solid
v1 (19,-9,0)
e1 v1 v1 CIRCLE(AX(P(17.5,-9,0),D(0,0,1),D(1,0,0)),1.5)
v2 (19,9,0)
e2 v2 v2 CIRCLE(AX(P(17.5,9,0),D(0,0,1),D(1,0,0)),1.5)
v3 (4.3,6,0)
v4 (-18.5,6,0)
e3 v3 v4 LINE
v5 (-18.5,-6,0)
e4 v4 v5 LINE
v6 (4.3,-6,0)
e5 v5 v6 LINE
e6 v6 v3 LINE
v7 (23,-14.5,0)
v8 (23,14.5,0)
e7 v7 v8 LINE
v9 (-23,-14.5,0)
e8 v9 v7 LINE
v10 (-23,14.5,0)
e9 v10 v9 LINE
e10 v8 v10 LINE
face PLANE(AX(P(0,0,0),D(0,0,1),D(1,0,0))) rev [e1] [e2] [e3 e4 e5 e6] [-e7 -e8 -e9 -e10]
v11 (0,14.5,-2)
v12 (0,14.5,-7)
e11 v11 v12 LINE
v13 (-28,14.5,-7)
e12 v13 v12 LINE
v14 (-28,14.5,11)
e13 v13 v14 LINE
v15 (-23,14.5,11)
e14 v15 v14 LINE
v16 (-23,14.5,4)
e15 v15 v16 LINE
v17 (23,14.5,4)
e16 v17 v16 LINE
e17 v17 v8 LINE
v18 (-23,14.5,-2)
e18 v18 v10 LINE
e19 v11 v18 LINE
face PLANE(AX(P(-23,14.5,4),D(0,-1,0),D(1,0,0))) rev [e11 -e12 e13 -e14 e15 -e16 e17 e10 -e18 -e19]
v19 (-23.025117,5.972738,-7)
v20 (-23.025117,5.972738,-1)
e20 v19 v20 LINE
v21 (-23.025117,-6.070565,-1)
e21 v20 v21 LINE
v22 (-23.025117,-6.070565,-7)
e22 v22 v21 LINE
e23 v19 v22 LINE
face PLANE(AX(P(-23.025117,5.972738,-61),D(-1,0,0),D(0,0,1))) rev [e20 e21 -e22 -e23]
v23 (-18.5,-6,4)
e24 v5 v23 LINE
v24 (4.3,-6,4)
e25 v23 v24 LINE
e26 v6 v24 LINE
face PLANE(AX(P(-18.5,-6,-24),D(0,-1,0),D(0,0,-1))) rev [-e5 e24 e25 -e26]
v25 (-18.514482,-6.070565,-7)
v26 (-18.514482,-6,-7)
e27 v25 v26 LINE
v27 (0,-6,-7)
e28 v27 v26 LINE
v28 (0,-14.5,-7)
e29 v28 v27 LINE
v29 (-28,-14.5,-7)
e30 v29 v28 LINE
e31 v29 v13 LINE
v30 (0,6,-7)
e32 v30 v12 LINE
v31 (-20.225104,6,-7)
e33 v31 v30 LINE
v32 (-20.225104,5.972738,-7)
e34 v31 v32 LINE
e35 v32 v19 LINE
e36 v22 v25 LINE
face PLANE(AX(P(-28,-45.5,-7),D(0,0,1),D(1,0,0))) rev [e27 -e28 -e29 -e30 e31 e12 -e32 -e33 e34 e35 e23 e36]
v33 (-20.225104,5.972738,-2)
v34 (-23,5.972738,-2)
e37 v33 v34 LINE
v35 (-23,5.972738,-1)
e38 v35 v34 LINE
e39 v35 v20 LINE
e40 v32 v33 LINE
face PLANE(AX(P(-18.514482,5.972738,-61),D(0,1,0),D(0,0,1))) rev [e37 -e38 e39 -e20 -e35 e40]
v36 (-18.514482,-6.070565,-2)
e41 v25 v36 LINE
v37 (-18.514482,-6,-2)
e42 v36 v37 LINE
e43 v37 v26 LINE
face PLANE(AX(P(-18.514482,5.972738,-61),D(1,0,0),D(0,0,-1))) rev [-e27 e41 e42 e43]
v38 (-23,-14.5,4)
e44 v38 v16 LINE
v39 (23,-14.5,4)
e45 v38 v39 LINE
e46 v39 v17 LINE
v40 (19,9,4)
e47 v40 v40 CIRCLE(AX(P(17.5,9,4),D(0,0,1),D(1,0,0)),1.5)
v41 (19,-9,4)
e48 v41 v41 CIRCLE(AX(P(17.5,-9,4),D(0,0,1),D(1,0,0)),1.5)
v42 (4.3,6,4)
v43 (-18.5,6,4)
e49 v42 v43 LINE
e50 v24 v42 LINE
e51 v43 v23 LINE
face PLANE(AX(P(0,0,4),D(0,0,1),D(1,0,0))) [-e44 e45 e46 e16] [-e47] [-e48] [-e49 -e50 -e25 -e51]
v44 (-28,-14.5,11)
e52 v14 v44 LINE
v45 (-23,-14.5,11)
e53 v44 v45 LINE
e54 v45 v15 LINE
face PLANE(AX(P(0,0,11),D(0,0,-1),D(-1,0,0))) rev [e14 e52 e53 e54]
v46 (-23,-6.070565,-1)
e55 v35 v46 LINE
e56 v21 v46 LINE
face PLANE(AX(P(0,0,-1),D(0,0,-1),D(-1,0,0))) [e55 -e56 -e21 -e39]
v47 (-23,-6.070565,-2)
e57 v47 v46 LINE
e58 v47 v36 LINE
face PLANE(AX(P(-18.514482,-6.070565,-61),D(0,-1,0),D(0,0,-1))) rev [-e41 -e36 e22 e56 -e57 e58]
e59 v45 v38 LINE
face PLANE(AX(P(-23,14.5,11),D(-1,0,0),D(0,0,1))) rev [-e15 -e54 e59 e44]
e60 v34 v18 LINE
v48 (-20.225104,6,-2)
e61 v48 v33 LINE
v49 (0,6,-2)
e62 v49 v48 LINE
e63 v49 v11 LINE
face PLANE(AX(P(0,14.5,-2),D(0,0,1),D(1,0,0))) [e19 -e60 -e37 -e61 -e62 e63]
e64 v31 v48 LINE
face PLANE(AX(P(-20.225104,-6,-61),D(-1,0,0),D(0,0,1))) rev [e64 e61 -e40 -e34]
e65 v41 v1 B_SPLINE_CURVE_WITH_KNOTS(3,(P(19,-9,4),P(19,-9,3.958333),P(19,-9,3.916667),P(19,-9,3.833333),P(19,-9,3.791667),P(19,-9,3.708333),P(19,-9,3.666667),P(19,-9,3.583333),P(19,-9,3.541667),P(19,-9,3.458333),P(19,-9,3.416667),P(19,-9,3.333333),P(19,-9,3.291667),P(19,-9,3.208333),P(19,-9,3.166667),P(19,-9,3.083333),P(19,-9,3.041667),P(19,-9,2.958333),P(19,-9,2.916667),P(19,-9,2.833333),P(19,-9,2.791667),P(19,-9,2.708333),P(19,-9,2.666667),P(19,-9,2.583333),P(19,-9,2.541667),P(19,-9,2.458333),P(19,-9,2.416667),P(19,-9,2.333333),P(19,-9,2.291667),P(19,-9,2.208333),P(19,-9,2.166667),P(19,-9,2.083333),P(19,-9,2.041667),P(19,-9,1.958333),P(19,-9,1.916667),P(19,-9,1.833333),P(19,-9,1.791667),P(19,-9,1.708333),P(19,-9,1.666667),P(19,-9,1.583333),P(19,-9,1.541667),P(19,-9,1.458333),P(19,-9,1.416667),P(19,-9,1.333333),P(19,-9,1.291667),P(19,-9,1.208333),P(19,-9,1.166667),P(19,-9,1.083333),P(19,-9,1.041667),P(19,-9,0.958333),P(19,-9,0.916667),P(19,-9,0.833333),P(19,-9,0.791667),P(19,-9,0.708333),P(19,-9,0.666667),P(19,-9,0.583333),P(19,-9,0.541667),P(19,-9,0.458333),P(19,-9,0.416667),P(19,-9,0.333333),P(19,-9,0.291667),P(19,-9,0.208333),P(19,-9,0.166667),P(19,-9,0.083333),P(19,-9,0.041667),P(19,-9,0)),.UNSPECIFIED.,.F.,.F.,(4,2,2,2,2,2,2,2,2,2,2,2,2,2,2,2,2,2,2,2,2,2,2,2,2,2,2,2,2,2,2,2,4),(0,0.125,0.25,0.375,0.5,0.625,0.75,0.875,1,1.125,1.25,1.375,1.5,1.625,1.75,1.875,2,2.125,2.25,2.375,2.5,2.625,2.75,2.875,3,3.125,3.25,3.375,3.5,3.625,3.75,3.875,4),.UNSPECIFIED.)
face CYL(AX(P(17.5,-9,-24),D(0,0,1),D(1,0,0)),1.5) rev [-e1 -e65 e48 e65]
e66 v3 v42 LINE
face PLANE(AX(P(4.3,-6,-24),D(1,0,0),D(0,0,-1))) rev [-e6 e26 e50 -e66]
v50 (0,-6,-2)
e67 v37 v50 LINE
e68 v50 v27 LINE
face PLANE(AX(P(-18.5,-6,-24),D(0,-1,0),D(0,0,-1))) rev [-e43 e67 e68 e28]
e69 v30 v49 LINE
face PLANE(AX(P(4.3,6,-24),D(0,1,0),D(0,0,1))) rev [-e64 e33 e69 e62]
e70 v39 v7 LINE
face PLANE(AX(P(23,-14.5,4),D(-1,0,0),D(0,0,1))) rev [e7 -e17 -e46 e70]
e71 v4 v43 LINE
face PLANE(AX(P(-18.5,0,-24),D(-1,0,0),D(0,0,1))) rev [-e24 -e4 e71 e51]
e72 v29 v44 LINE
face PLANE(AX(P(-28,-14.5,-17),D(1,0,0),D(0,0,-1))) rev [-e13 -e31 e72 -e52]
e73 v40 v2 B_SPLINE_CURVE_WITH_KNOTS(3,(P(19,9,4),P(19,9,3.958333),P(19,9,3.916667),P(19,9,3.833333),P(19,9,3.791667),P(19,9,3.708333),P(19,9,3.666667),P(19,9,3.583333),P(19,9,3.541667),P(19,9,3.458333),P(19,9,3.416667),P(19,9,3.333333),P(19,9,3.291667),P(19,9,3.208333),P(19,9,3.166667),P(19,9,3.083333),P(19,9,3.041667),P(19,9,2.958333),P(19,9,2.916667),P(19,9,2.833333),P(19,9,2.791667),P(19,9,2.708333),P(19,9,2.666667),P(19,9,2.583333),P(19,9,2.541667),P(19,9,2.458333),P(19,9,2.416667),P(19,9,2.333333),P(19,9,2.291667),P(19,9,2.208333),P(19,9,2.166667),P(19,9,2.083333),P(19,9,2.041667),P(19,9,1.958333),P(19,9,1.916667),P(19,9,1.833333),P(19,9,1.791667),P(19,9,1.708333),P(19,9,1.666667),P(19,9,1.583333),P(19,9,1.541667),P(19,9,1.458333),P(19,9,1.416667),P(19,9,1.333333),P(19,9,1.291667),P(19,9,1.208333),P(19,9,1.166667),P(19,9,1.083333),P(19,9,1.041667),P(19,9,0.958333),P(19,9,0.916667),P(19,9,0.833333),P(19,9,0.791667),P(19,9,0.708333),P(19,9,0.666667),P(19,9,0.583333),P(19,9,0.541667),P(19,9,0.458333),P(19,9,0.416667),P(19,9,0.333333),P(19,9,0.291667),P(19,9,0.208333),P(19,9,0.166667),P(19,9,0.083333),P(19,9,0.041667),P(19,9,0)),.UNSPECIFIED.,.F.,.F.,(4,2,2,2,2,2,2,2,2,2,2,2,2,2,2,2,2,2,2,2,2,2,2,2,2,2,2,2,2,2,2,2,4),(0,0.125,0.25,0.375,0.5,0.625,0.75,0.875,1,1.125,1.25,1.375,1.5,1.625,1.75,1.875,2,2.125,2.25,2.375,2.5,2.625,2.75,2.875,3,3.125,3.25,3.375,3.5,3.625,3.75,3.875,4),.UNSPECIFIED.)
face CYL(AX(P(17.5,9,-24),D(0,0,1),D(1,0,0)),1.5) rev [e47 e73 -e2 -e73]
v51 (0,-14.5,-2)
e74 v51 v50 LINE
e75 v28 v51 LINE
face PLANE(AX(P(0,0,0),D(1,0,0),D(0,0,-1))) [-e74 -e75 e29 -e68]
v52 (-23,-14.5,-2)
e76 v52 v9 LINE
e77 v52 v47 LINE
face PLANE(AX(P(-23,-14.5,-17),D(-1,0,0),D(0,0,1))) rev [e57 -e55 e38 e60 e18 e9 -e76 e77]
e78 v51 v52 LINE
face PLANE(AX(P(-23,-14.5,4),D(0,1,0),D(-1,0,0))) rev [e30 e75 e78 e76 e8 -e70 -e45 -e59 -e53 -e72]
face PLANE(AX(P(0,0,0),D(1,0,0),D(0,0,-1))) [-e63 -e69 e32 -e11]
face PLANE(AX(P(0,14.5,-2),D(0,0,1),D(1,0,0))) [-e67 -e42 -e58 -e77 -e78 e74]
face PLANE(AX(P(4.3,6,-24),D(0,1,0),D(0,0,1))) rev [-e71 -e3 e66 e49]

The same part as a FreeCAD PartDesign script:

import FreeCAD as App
import Part
import Sketcher

V = App.Vector


def add_polygon(sketch, points):
    """Adds a closed chain of lines whose ends are joined by coincident constraints."""
    first, n = sketch.GeometryCount, len(points)
    for a, b in zip(points, points[1:] + points[:1]):
        sketch.addGeometry(Part.LineSegment(App.Vector(*a, 0), App.Vector(*b, 0)), False)
    for i in range(n):
        sketch.addConstraint(Sketcher.Constraint("Coincident", first + i, 2, first + (i + 1) % n, 1))

doc = App.newDocument("Part")
params = doc.addObject("Spreadsheet::Sheet", "Params")
for row, (alias, value) in enumerate([
    ("sketch1_width", "46 mm"),
    ("sketch1_height", "29 mm"),
    ("pad1_length", "4 mm"),
    ("sketch2_width", "5 mm"),
    ("sketch2_height", "29 mm"),
    ("pad2_length", "7 mm"),
    ("sketch3_width", "5 mm"),
    ("sketch3_height", "29 mm"),
    ("pad3_length", "21 mm"),
    ("sketch4_width", "29 mm"),
    ("sketch4_height", "15 mm"),
    ("pad4_length", "28 mm"),
    ("sketch5_diameter", "3 mm"),
    ("sketch5_height", "12 mm"),
    ("sketch5_width", "22.8 mm"),
    ("pocket1_length", "28 mm"),
    ("sketch6_width", "28 mm"),
    ("sketch6_height", "10 mm"),
    ("pocket2_length", "60 mm"),
    ("pocket3_length", "60 mm"),
    ("sketch8_height", "12 mm"),
    ("pocket4_length", "60 mm"),
], start=1):
    params.set(f"A{row}", alias)
    params.set(f"B{row}", "=" + value)
    params.setAlias(f"B{row}", alias)

body = doc.addObject("PartDesign::Body", "Body")

# Sketch on XY plane
sketch1 = body.newObject("Sketcher::SketchObject", "Sketch")
sketch1.AttachmentSupport = (doc.getObject("XY_Plane"), [""])
sketch1.MapMode = "FlatFace"
add_polygon(sketch1, [(-23, -14), (23, -14), (23, 14), (-23, 14)])  # lines 0-3
sketch1.addConstraint(Sketcher.Constraint("Horizontal", 0))
sketch1.addConstraint(Sketcher.Constraint("Vertical", 1))
sketch1.addConstraint(Sketcher.Constraint("Horizontal", 2))
sketch1.addConstraint(Sketcher.Constraint("Vertical", 3))
sketch1.addConstraint(Sketcher.Constraint("Symmetric", 0, 2, 2, 2, -1, 1))
sketch1.addConstraint(Sketcher.Constraint("DistanceX", 0, 1, 0, 2, 46.0))
sketch1.addConstraint(Sketcher.Constraint("DistanceY", 1, 1, 1, 2, 29.0))
sketch1.setExpression("Constraints[9]", "Params.sketch1_width")
sketch1.setExpression("Constraints[10]", "Params.sketch1_height")
pad1 = body.newObject("PartDesign::Pad", "Pad")
pad1.Profile = sketch1
pad1.setExpression("Length", "Params.pad1_length")
body2 = doc.addObject("PartDesign::Body", "Body001")

# Sketch on XY plane
sketch2 = body2.newObject("Sketcher::SketchObject", "Sketch001")
sketch2.AttachmentSupport = (doc.getObject("XY_Plane001"), [""])
sketch2.MapMode = "FlatFace"
sketch2.AttachmentOffset = App.Placement(V(0, 0, 4), App.Rotation())
add_polygon(sketch2, [(-28, 14), (-28, -14), (-23, -14), (-23, 14)])  # lines 0-3
sketch2.addConstraint(Sketcher.Constraint("Vertical", 0))
sketch2.addConstraint(Sketcher.Constraint("Horizontal", 1))
sketch2.addConstraint(Sketcher.Constraint("Vertical", 2))
sketch2.addConstraint(Sketcher.Constraint("Horizontal", 3))
sketch2.addConstraint(Sketcher.Constraint("DistanceX", 1, 1, 1, 2, 5.0))
sketch2.addConstraint(Sketcher.Constraint("DistanceY", 0, 2, 0, 1, 29.0))
sketch2.addConstraint(Sketcher.Constraint("DistanceX", 0, 2, -1, 1, 28.0))
sketch2.addConstraint(Sketcher.Constraint("DistanceY", 0, 2, -1, 1, 14.5))
sketch2.setExpression("Constraints[8]", "Params.sketch2_width")
sketch2.setExpression("Constraints[9]", "Params.sketch2_height")
pad2 = body2.newObject("PartDesign::Pad", "Pad001")
pad2.Profile = sketch2
pad2.setExpression("Length", "Params.pad2_length")
body.AllowCompound = True
doc.recompute()

boolean = body.newObject("PartDesign::Boolean", "Boolean")
boolean.Type = "Fuse"
boolean.addObjects([body2])

# Sketch on XY plane
sketch3 = body.newObject("Sketcher::SketchObject", "Sketch002")
sketch3.AttachmentSupport = (doc.getObject("XY_Plane"), [""])
sketch3.MapMode = "FlatFace"
sketch3.AttachmentOffset = App.Placement(V(0, 0, 4), App.Rotation())
add_polygon(sketch3, [(-28, -14), (-28, 14), (-23, 14), (-23, -14)])  # lines 0-3
sketch3.addConstraint(Sketcher.Constraint("Vertical", 0))
sketch3.addConstraint(Sketcher.Constraint("Horizontal", 1))
sketch3.addConstraint(Sketcher.Constraint("Vertical", 2))
sketch3.addConstraint(Sketcher.Constraint("Horizontal", 3))
sketch3.addConstraint(Sketcher.Constraint("DistanceX", 1, 1, 1, 2, 5.0))
sketch3.addConstraint(Sketcher.Constraint("DistanceY", 0, 1, 0, 2, 29.0))
sketch3.addConstraint(Sketcher.Constraint("DistanceX", 0, 2, -1, 1, 28.0))
sketch3.addConstraint(Sketcher.Constraint("DistanceY", -1, 1, 0, 2, 14.5))
sketch3.setExpression("Constraints[8]", "Params.sketch3_width")
sketch3.setExpression("Constraints[9]", "Params.sketch3_height")
pad3 = body.newObject("PartDesign::Pad", "Pad002")
pad3.Profile = sketch3
pad3.setExpression("Length", "Params.pad3_length")
pad3.Reversed = True

# Sketch on YZ plane
sketch4 = body.newObject("Sketcher::SketchObject", "Sketch003")
sketch4.AttachmentSupport = (doc.getObject("YZ_Plane"), [""])
sketch4.MapMode = "FlatFace"
sketch4.AttachmentOffset = App.Placement(V(0, 0, -28), App.Rotation())
add_polygon(sketch4, [(14, -2), (14, -17), (-14, -17), (-14, -2)])  # lines 0-3
sketch4.addConstraint(Sketcher.Constraint("Vertical", 0))
sketch4.addConstraint(Sketcher.Constraint("Horizontal", 1))
sketch4.addConstraint(Sketcher.Constraint("Vertical", 2))
sketch4.addConstraint(Sketcher.Constraint("Horizontal", 3))
sketch4.addConstraint(Sketcher.Constraint("DistanceX", 1, 2, 1, 1, 29.0))
sketch4.addConstraint(Sketcher.Constraint("DistanceY", 0, 2, 0, 1, 15.0))
sketch4.addConstraint(Sketcher.Constraint("DistanceY", 0, 2, -1, 1, 17.0))
sketch4.addConstraint(Sketcher.Constraint("DistanceX", -1, 1, 0, 2, 14.5))
sketch4.setExpression("Constraints[8]", "Params.sketch4_width")
sketch4.setExpression("Constraints[9]", "Params.sketch4_height")
pad4 = body.newObject("PartDesign::Pad", "Pad003")
pad4.Profile = sketch4
pad4.setExpression("Length", "Params.pad4_length")

# Sketch on XY plane
sketch5 = body.newObject("Sketcher::SketchObject", "Sketch004")
sketch5.AttachmentSupport = (doc.getObject("XY_Plane"), [""])
sketch5.MapMode = "FlatFace"
sketch5.AttachmentOffset = App.Placement(V(0, 0, 4), App.Rotation())
sketch5.addGeometry(Part.Circle(V(17.5, -9, 0), V(0, 0, 1), 1.5), False)  # 0
sketch5.addGeometry(Part.Circle(V(17.5, 9, 0), V(0, 0, 1), 1.5), False)  # 1
add_polygon(sketch5, [(-18.5, -6), (4.3, -6), (4.3, 6), (-18.5, 6)])  # lines 2-5
sketch5.addConstraint(Sketcher.Constraint("Horizontal", 2))
sketch5.addConstraint(Sketcher.Constraint("Vertical", 3))
sketch5.addConstraint(Sketcher.Constraint("Horizontal", 4))
sketch5.addConstraint(Sketcher.Constraint("Vertical", 5))
sketch5.addConstraint(Sketcher.Constraint("Equal", 0, 1))
sketch5.addConstraint(Sketcher.Constraint("Symmetric", 0, 3, 1, 3, -1))
sketch5.addConstraint(Sketcher.Constraint("Diameter", 0, 3.0))
sketch5.addConstraint(Sketcher.Constraint("DistanceY", 3, 1, 3, 2, 12.0))
sketch5.addConstraint(Sketcher.Constraint("DistanceX", 2, 1, 2, 2, 22.8))
sketch5.addConstraint(Sketcher.Constraint("DistanceY", 0, 3, -1, 1, 9.0))
sketch5.addConstraint(Sketcher.Constraint("DistanceY", 2, 2, -1, 1, 6.0))
sketch5.addConstraint(Sketcher.Constraint("DistanceX", 4, 2, 1, 3, 36.0))
sketch5.addConstraint(Sketcher.Constraint("DistanceX", -1, 1, 0, 3, 17.5))
sketch5.setExpression("Constraints[10]", "Params.sketch5_diameter")
sketch5.setExpression("Constraints[11]", "Params.sketch5_height")
sketch5.setExpression("Constraints[12]", "Params.sketch5_width")
pocket1 = body.newObject("PartDesign::Pocket", "Pocket")
pocket1.Profile = sketch5
pocket1.setExpression("Length", "Params.pocket1_length")

# Sketch on XZ plane
sketch6 = body.newObject("Sketcher::SketchObject", "Sketch005")
sketch6.AttachmentSupport = (doc.getObject("XZ_Plane"), [""])
sketch6.MapMode = "FlatFace"
sketch6.AttachmentOffset = App.Placement(V(0, 0, -14.5), App.Rotation())
add_polygon(sketch6, [(-28, -17), (-28, -7), (0, -7), (0, -17)])  # lines 0-3
sketch6.addConstraint(Sketcher.Constraint("Vertical", 0))
sketch6.addConstraint(Sketcher.Constraint("Horizontal", 1))
sketch6.addConstraint(Sketcher.Constraint("Vertical", 2))
sketch6.addConstraint(Sketcher.Constraint("Horizontal", 3))
sketch6.addConstraint(Sketcher.Constraint("PointOnObject", 1, 2, -2))
sketch6.addConstraint(Sketcher.Constraint("DistanceX", 1, 1, 1, 2, 28.0))
sketch6.addConstraint(Sketcher.Constraint("DistanceY", 0, 1, 0, 2, 10.0))
sketch6.addConstraint(Sketcher.Constraint("DistanceY", 0, 2, -1, 1, 7.0))
sketch6.setExpression("Constraints[9]", "Params.sketch6_width")
sketch6.setExpression("Constraints[10]", "Params.sketch6_height")
pocket2 = body.newObject("PartDesign::Pocket", "Pocket001")
pocket2.Profile = sketch6
pocket2.setExpression("Length", "Params.pocket2_length")
pocket2.Reversed = True

# Sketch on XY plane
sketch7 = body.newObject("Sketcher::SketchObject", "Sketch006")
sketch7.AttachmentSupport = (doc.getObject("XY_Plane"), [""])
sketch7.MapMode = "FlatFace"
sketch7.AttachmentOffset = App.Placement(V(0, 0, -1), App.Rotation())
add_polygon(sketch7, [(-23, 6), (-23, -6.1), (-18.5, -6.1), (-18.5, 6)])  # lines 0-3
sketch7.addConstraint(Sketcher.Constraint("Vertical", 0))
sketch7.addConstraint(Sketcher.Constraint("Horizontal", 1))
sketch7.addConstraint(Sketcher.Constraint("Vertical", 2))
sketch7.addConstraint(Sketcher.Constraint("Horizontal", 3))
sketch7.addConstraint(Sketcher.Constraint("DistanceX", 1, 1, 1, 2, 4.510635))
sketch7.addConstraint(Sketcher.Constraint("DistanceY", 0, 2, 0, 1, 12.043303))
sketch7.addConstraint(Sketcher.Constraint("DistanceX", 0, 2, -1, 1, 23.025117))
sketch7.addConstraint(Sketcher.Constraint("DistanceY", 0, 2, -1, 1, 6.070565))
pocket3 = body.newObject("PartDesign::Pocket", "Pocket002")
pocket3.Profile = sketch7
pocket3.setExpression("Length", "Params.pocket3_length")

# Sketch on XY plane
sketch8 = body.newObject("Sketcher::SketchObject", "Sketch007")
sketch8.AttachmentSupport = (doc.getObject("XY_Plane"), [""])
sketch8.MapMode = "FlatFace"
sketch8.AttachmentOffset = App.Placement(V(0, 0, -1), App.Rotation())
add_polygon(sketch8, [(-20.2, 6), (-20.2, -6), (-16.8, -6), (-16.8, 6)])  # lines 0-3
sketch8.addConstraint(Sketcher.Constraint("Vertical", 0))
sketch8.addConstraint(Sketcher.Constraint("Horizontal", 1))
sketch8.addConstraint(Sketcher.Constraint("Vertical", 2))
sketch8.addConstraint(Sketcher.Constraint("Horizontal", 3))
sketch8.addConstraint(Sketcher.Constraint("DistanceY", 0, 2, 0, 1, 12.0))
sketch8.addConstraint(Sketcher.Constraint("DistanceY", 0, 2, -1, 1, 6.0))
sketch8.addConstraint(Sketcher.Constraint("DistanceX", 1, 1, 1, 2, 3.46468))
sketch8.addConstraint(Sketcher.Constraint("DistanceX", 0, 2, -1, 1, 20.225104))
sketch8.setExpression("Constraints[8]", "Params.sketch8_height")
pocket4 = body.newObject("PartDesign::Pocket", "Pocket003")
pocket4.Profile = sketch8
pocket4.setExpression("Length", "Params.pocket4_length")

doc.recompute()
